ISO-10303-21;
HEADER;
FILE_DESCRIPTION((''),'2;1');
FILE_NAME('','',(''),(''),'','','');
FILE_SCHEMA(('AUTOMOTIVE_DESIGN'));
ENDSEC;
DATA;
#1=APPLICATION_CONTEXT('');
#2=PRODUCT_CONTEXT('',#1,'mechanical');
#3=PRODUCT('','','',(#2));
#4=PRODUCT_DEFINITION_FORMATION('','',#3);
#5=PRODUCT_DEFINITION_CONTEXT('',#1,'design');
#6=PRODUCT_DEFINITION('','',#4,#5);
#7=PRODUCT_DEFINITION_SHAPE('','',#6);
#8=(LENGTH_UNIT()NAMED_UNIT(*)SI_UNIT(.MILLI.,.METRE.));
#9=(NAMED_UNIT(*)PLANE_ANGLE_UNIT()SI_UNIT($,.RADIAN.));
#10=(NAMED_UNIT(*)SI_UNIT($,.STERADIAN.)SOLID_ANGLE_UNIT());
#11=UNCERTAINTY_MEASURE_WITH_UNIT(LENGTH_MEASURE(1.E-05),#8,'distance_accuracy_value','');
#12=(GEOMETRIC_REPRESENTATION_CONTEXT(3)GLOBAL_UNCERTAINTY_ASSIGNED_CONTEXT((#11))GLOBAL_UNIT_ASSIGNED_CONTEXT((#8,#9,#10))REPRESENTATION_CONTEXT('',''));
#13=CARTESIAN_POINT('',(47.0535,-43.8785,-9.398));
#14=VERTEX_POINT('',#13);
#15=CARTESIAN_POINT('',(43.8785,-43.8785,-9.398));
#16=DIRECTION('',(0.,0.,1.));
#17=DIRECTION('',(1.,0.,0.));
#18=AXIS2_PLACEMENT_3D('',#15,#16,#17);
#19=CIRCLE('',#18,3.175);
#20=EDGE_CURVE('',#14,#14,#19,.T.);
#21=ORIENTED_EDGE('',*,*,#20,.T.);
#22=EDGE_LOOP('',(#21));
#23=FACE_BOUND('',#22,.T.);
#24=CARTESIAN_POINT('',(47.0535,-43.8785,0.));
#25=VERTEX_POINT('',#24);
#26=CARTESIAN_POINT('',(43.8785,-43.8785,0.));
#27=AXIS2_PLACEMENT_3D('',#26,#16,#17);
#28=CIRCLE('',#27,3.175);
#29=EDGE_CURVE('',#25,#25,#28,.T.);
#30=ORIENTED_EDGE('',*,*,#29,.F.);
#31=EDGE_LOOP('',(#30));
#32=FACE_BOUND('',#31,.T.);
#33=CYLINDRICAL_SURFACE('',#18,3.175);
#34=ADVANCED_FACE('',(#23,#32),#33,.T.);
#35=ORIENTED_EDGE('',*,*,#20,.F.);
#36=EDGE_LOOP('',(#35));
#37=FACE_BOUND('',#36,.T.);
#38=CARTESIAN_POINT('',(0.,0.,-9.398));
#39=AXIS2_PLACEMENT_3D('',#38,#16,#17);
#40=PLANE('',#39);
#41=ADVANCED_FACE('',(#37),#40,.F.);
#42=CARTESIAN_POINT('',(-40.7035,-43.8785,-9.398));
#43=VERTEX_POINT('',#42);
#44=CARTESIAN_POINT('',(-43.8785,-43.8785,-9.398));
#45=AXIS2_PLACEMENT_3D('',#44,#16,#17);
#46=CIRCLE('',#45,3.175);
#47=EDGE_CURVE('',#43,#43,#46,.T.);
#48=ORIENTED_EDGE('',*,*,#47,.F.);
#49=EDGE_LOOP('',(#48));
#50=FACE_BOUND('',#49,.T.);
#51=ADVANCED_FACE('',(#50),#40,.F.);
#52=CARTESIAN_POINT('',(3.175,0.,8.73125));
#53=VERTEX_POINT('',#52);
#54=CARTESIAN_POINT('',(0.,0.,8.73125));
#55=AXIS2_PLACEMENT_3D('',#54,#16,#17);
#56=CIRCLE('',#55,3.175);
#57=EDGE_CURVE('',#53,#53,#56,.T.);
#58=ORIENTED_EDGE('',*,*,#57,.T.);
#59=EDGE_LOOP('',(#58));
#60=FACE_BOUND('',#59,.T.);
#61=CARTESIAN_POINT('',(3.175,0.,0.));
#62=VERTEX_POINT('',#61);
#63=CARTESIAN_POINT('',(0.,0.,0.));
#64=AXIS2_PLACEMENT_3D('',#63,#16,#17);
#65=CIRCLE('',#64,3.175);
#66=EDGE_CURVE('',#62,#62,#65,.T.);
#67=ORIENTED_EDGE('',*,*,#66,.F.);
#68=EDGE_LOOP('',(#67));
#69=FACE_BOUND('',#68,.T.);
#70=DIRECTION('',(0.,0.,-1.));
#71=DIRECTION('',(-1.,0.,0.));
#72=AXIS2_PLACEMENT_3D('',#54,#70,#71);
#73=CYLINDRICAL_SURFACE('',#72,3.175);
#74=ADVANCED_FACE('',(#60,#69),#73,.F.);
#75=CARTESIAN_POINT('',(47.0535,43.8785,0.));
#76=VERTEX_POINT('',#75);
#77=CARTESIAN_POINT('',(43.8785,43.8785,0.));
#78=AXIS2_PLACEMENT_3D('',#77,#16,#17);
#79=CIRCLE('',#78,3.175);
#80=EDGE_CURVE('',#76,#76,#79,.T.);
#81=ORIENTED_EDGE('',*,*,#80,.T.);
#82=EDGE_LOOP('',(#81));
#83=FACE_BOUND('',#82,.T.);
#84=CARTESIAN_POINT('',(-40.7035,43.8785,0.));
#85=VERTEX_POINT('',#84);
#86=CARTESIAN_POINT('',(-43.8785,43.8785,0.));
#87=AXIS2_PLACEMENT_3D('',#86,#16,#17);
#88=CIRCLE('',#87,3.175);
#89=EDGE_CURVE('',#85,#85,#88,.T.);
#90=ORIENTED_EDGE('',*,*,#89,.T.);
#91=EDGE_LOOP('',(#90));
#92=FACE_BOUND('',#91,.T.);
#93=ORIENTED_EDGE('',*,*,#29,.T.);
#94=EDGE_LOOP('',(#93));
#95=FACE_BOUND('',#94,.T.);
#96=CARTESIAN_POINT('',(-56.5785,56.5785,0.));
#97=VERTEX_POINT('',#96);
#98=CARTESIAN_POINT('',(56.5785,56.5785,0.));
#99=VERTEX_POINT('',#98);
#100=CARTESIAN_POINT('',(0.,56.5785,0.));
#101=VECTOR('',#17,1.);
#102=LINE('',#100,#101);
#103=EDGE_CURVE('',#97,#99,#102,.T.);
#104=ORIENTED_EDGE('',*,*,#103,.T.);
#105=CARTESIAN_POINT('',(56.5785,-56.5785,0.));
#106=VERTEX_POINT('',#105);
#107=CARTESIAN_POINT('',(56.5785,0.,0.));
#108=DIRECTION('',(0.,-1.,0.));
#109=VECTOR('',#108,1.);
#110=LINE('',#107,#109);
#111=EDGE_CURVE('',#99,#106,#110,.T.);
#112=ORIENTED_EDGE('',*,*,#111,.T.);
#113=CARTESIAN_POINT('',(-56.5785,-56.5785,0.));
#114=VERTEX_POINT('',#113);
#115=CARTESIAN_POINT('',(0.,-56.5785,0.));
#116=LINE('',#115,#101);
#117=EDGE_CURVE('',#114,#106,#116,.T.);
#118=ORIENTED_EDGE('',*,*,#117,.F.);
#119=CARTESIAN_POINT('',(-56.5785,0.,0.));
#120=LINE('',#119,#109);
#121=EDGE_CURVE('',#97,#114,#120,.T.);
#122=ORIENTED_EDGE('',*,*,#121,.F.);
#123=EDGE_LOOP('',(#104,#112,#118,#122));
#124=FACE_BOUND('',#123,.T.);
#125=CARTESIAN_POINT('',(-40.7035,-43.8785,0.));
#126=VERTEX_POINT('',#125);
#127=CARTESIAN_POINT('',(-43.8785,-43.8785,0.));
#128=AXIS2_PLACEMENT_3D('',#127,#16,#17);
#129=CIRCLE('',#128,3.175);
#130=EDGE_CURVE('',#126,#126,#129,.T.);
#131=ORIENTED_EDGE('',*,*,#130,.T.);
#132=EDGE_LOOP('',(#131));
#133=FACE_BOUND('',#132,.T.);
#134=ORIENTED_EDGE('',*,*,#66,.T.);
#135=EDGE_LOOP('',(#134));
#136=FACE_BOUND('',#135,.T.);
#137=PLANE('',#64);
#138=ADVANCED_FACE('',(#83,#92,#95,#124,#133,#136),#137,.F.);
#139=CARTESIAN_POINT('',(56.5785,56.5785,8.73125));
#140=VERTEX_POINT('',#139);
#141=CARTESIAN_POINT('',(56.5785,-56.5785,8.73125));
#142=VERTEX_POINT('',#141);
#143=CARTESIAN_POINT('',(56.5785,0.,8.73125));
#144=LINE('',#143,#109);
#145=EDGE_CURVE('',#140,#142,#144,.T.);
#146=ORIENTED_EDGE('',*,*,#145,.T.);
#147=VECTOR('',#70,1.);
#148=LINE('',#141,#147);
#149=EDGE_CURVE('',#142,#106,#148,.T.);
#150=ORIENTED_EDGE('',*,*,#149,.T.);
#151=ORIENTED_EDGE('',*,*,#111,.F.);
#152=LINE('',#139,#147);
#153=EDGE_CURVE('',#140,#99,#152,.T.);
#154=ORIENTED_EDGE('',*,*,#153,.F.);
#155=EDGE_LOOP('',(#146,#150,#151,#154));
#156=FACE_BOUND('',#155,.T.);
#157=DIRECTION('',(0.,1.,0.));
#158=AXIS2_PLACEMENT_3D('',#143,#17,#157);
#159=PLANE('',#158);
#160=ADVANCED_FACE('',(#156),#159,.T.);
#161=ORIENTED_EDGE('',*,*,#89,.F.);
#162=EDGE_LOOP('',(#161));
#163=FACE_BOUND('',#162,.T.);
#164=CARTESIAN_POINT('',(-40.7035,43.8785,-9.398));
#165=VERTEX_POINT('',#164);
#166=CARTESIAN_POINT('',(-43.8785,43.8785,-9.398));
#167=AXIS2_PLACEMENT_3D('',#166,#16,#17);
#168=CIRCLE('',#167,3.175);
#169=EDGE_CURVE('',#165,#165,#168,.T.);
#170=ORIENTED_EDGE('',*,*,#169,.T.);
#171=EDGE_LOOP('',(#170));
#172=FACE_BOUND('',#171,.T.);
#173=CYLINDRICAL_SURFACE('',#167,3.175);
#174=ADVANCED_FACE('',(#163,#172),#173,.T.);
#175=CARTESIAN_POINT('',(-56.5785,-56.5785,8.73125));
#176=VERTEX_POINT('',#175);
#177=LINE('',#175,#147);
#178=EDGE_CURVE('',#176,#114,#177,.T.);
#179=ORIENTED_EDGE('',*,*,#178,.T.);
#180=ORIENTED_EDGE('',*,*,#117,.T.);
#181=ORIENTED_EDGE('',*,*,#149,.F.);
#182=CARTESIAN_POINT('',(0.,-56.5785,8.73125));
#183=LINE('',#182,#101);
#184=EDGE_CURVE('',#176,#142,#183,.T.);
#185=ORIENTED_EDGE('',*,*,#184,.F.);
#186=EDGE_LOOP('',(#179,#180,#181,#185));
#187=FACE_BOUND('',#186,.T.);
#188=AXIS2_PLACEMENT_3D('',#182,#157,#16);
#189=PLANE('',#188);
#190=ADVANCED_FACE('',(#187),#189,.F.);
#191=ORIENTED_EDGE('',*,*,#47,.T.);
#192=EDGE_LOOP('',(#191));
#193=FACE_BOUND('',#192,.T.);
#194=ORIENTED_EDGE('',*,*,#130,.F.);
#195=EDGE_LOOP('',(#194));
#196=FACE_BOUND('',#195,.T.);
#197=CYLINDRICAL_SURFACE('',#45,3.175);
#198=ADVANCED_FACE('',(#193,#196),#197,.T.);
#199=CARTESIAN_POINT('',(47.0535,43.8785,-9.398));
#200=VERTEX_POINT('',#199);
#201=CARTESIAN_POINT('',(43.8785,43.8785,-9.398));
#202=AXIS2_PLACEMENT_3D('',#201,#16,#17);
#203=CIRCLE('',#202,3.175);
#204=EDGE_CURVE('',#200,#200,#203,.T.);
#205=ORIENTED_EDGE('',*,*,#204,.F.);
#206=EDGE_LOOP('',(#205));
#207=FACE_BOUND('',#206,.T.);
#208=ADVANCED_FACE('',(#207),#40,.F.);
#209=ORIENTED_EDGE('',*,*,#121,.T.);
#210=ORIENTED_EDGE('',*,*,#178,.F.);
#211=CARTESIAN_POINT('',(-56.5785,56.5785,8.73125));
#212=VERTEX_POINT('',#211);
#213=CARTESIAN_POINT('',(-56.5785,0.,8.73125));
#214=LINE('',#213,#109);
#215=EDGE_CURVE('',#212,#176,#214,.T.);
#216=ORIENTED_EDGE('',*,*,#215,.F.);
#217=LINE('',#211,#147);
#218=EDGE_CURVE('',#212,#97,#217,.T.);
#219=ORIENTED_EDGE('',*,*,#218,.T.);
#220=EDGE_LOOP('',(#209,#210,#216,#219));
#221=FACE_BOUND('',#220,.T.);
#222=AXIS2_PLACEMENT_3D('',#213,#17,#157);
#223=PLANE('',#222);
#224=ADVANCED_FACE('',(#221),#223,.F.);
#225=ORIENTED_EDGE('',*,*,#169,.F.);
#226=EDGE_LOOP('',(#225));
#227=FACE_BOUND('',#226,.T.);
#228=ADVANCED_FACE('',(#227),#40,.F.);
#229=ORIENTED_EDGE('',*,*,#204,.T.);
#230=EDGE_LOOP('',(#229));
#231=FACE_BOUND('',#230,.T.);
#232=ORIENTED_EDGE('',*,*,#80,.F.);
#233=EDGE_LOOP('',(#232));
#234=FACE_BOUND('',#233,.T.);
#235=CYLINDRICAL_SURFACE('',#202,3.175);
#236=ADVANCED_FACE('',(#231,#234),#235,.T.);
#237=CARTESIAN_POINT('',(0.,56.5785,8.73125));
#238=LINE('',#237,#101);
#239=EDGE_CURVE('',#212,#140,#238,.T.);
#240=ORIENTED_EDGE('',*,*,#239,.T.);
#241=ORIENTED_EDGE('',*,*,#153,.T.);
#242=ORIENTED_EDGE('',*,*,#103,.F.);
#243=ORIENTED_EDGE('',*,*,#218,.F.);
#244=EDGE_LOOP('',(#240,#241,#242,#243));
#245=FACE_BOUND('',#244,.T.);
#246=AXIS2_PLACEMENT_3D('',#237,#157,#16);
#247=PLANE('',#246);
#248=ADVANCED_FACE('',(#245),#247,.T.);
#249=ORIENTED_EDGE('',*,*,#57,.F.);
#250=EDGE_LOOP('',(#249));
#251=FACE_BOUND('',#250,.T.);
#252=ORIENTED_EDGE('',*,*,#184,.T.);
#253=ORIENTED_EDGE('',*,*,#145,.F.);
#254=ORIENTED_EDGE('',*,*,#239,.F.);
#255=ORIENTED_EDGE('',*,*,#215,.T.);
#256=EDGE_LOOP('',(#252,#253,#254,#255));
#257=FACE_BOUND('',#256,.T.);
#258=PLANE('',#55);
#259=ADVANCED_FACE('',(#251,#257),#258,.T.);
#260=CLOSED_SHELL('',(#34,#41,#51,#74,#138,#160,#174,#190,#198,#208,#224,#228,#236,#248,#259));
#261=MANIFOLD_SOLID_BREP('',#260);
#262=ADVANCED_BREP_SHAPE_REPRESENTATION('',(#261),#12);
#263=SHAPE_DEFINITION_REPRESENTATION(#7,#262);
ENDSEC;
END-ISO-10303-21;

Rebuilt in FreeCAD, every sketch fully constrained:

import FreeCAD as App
import Part
import Sketcher
from FreeCAD import Vector
Q = App.Units.Quantity

doc = App.newDocument("Part")
body = doc.addObject("PartDesign::Body", "Body")

# Sketch on XY plane
sketch1 = body.newObject("Sketcher::SketchObject", "Sketch")
sketch1.AttachmentSupport = (doc.getObject("XY_Plane"), [""])
sketch1.MapMode = "FlatFace"
sketch1.addGeometry(Part.LineSegment(Vector(-56.6, 56.6, 0), Vector(-56.6, -56.6, 0)), False)
sketch1.addGeometry(Part.LineSegment(Vector(-56.6, -56.6, 0), Vector(56.6, -56.6, 0)), False)
sketch1.addGeometry(Part.LineSegment(Vector(56.6, -56.6, 0), Vector(56.6, 56.6, 0)), False)
sketch1.addGeometry(Part.LineSegment(Vector(56.6, 56.6, 0), Vector(-56.6, 56.6, 0)), False)
sketch1.addGeometry(Part.Circle(Vector(0, 0, 0), Vector(0, 0, 1), 3.2), False)
sketch1.addConstraint(Sketcher.Constraint("Coincident", 0, 2, 1, 1))
sketch1.addConstraint(Sketcher.Constraint("Coincident", 1, 2, 2, 1))
sketch1.addConstraint(Sketcher.Constraint("Coincident", 2, 2, 3, 1))
sketch1.addConstraint(Sketcher.Constraint("Coincident", 3, 2, 0, 1))
sketch1.addConstraint(Sketcher.Constraint("Vertical", 0))
sketch1.addConstraint(Sketcher.Constraint("Horizontal", 1))
sketch1.addConstraint(Sketcher.Constraint("Vertical", 2))
sketch1.addConstraint(Sketcher.Constraint("Horizontal", 3))
sketch1.addConstraint(Sketcher.Constraint("Coincident", 4, 3, -1, 1))
sketch1.addConstraint(Sketcher.Constraint("Symmetric", 0, 2, 2, 2, -1, 1))
sketch1.addConstraint(Sketcher.Constraint("Equal", 3, 0))
sketch1.addConstraint(Sketcher.Constraint("Diameter", 4, Q("0.25 in")))
sketch1.addConstraint(Sketcher.Constraint("DistanceX", 1, 1, 1, 2, Q("4.455 in")))
pad1 = body.newObject("PartDesign::Pad", "Pad")
pad1.Profile = sketch1
pad1.Length = Q("0.34375 in")

# Sketch on XY plane
sketch2 = body.newObject("Sketcher::SketchObject", "Sketch001")
sketch2.AttachmentSupport = (doc.getObject("XY_Plane"), [""])
sketch2.MapMode = "FlatFace"
sketch2.addGeometry(Part.Circle(Vector(43.9, 43.9, 0), Vector(0, 0, 1), 3.2), False)
sketch2.addGeometry(Part.Circle(Vector(-43.9, 43.9, 0), Vector(0, 0, 1), 3.2), False)
sketch2.addGeometry(Part.Circle(Vector(-43.9, -43.9, 0), Vector(0, 0, 1), 3.2), False)
sketch2.addGeometry(Part.Circle(Vector(43.9, -43.9, 0), Vector(0, 0, 1), 3.2), False)
sketch2.addConstraint(Sketcher.Constraint("Equal", 0, 1))
sketch2.addConstraint(Sketcher.Constraint("Equal", 1, 2))
sketch2.addConstraint(Sketcher.Constraint("Equal", 2, 3))
sketch2.addConstraint(Sketcher.Constraint("Symmetric", 0, 3, 2, 3, -1, 1))
sketch2.addConstraint(Sketcher.Constraint("Symmetric", 1, 3, 3, 3, -1, 1))
sketch2.addConstraint(Sketcher.Constraint("Symmetric", 0, 3, 1, 3, -2))
sketch2.addConstraint(Sketcher.Constraint("Diameter", 0, Q("0.25 in")))
sketch2.addConstraint(Sketcher.Constraint("DistanceX", 1, 3, 0, 3, Q("3.455 in")))
sketch2.addConstraint(Sketcher.Constraint("DistanceY", 2, 3, 1, 3, Q("3.455 in")))
pad2 = body.newObject("PartDesign::Pad", "Pad001")
pad2.Profile = sketch2
pad2.Length = Q("0.37 in")
pad2.Reversed = True

doc.recompute()
